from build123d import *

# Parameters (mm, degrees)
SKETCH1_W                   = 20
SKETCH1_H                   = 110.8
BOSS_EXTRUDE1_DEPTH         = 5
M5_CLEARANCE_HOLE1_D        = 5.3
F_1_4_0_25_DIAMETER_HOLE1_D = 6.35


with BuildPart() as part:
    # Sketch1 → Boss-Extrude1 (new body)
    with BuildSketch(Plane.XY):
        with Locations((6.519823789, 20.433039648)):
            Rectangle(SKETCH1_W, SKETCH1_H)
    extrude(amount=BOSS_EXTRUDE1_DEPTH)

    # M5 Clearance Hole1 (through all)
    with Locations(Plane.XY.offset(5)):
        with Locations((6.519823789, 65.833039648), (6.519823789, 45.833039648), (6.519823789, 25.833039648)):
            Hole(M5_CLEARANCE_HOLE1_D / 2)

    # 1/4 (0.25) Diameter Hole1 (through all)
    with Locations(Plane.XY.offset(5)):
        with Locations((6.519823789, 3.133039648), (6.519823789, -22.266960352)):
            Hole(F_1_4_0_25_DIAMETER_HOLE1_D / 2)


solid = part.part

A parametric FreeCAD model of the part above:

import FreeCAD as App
import Part
import Sketcher
from FreeCAD import Vector

doc = App.newDocument("Part")
params = doc.addObject("Spreadsheet::Sheet", "Params")
for row, (alias, value) in enumerate([
    ("sketch1_width", "20 mm"),
    ("sketch1_height", "110.8 mm"),
    ("pad1_length", "5 mm"),
    ("sketch2_diameter", "5.3 mm"),
    ("hole_diameter", "5.3 mm"),
    ("sketch3_diameter", "6.35 mm"),
    ("hole2_diameter", "6.35 mm"),
], start=1):
    params.set(f"A{row}", alias)
    params.set(f"B{row}", "=" + value)
    params.setAlias(f"B{row}", alias)

body = doc.addObject("PartDesign::Body", "Body")

# Sketch on XY plane
sketch1 = body.newObject("Sketcher::SketchObject", "Sketch")
sketch1.AttachmentSupport = (doc.getObject("XY_Plane"), [""])
sketch1.MapMode = "FlatFace"
sketch1.addGeometry(Part.LineSegment(Vector(-3, 76, 0), Vector(-3, -35, 0)), False)
sketch1.addGeometry(Part.LineSegment(Vector(-3, -35, 0), Vector(17, -35, 0)), False)
sketch1.addGeometry(Part.LineSegment(Vector(17, -35, 0), Vector(17, 76, 0)), False)
sketch1.addGeometry(Part.LineSegment(Vector(17, 76, 0), Vector(-3, 76, 0)), False)
sketch1.addConstraint(Sketcher.Constraint("Coincident", 0, 2, 1, 1))
sketch1.addConstraint(Sketcher.Constraint("Coincident", 1, 2, 2, 1))
sketch1.addConstraint(Sketcher.Constraint("Coincident", 2, 2, 3, 1))
sketch1.addConstraint(Sketcher.Constraint("Coincident", 3, 2, 0, 1))
sketch1.addConstraint(Sketcher.Constraint("Vertical", 0))
sketch1.addConstraint(Sketcher.Constraint("Horizontal", 1))
sketch1.addConstraint(Sketcher.Constraint("Vertical", 2))
sketch1.addConstraint(Sketcher.Constraint("Horizontal", 3))
sketch1.addConstraint(Sketcher.Constraint("DistanceX", 1, 1, 1, 2, 20.0))
sketch1.addConstraint(Sketcher.Constraint("DistanceY", 0, 2, 0, 1, 110.8))
sketch1.addConstraint(Sketcher.Constraint("DistanceY", 0, 2, -1, 1, 34.96696))
sketch1.addConstraint(Sketcher.Constraint("DistanceX", 0, 2, -1, 1, 3.480176))
sketch1.setExpression("Constraints[8]", "Params.sketch1_width")
sketch1.setExpression("Constraints[9]", "Params.sketch1_height")
pad1 = body.newObject("PartDesign::Pad", "Pad")
pad1.Profile = sketch1
pad1.setExpression("Length", "Params.pad1_length")

# Sketch on XY plane
sketch2 = body.newObject("Sketcher::SketchObject", "Sketch001")
sketch2.AttachmentSupport = (doc.getObject("XY_Plane"), [""])
sketch2.MapMode = "FlatFace"
sketch2.AttachmentOffset = App.Placement(Vector(0, 0, 5), App.Rotation())
sketch2.addGeometry(Part.Circle(Vector(6.5, 65.8, 0), Vector(0, 0, 1), 2.6), False)
sketch2.addGeometry(Part.Circle(Vector(6.5, 45.8, 0), Vector(0, 0, 1), 2.6), False)
sketch2.addGeometry(Part.Circle(Vector(6.5, 25.8, 0), Vector(0, 0, 1), 2.6), False)
sketch2.addConstraint(Sketcher.Constraint("Equal", 0, 1))
sketch2.addConstraint(Sketcher.Constraint("Equal", 1, 2))
sketch2.addConstraint(Sketcher.Constraint("Vertical", 0, 3, 1, 3))
sketch2.addConstraint(Sketcher.Constraint("Vertical", 1, 3, 2, 3))
sketch2.addConstraint(Sketcher.Constraint("Diameter", 0, 5.3))
sketch2.addConstraint(Sketcher.Constraint("DistanceY", 1, 3, 0, 3, 20.0))
sketch2.addConstraint(Sketcher.Constraint("DistanceY", 2, 3, 1, 3, 20.0))
sketch2.addConstraint(Sketcher.Constraint("DistanceY", -1, 1, 0, 3, 65.83304))
sketch2.addConstraint(Sketcher.Constraint("DistanceX", -1, 1, 0, 3, 6.519824))
sketch2.setExpression("Constraints[4]", "Params.sketch2_diameter")
doc.recompute()
hole = body.newObject("PartDesign::Hole", "Hole")
hole.Profile = sketch2
hole.ThreadType = "None"
hole.setExpression("Diameter", "Params.hole_diameter")
hole.DepthType = "ThroughAll"

# Sketch on XY plane
sketch3 = body.newObject("Sketcher::SketchObject", "Sketch002")
sketch3.AttachmentSupport = (doc.getObject("XY_Plane"), [""])
sketch3.MapMode = "FlatFace"
sketch3.AttachmentOffset = App.Placement(Vector(0, 0, 5), App.Rotation())
sketch3.addGeometry(Part.Circle(Vector(6.5, 3.1, 0), Vector(0, 0, 1), 3.2), False)
sketch3.addGeometry(Part.Circle(Vector(6.5, -22.3, 0), Vector(0, 0, 1), 3.2), False)
sketch3.addConstraint(Sketcher.Constraint("Equal", 0, 1))
sketch3.addConstraint(Sketcher.Constraint("Vertical", 0, 3, 1, 3))
sketch3.addConstraint(Sketcher.Constraint("Diameter", 0, 6.35))
sketch3.addConstraint(Sketcher.Constraint("DistanceY", 1, 3, 0, 3, 25.4))
sketch3.addConstraint(Sketcher.Constraint("DistanceY", -1, 1, 0, 3, 3.13304))
sketch3.addConstraint(Sketcher.Constraint("DistanceX", -1, 1, 0, 3, 6.519824))
sketch3.setExpression("Constraints[2]", "Params.sketch3_diameter")
doc.recompute()
hole2 = body.newObject("PartDesign::Hole", "Hole001")
hole2.Profile = sketch3
hole2.ThreadType = "None"
hole2.setExpression("Diameter", "Params.hole2_diameter")
hole2.DepthType = "ThroughAll"

doc.recompute()
